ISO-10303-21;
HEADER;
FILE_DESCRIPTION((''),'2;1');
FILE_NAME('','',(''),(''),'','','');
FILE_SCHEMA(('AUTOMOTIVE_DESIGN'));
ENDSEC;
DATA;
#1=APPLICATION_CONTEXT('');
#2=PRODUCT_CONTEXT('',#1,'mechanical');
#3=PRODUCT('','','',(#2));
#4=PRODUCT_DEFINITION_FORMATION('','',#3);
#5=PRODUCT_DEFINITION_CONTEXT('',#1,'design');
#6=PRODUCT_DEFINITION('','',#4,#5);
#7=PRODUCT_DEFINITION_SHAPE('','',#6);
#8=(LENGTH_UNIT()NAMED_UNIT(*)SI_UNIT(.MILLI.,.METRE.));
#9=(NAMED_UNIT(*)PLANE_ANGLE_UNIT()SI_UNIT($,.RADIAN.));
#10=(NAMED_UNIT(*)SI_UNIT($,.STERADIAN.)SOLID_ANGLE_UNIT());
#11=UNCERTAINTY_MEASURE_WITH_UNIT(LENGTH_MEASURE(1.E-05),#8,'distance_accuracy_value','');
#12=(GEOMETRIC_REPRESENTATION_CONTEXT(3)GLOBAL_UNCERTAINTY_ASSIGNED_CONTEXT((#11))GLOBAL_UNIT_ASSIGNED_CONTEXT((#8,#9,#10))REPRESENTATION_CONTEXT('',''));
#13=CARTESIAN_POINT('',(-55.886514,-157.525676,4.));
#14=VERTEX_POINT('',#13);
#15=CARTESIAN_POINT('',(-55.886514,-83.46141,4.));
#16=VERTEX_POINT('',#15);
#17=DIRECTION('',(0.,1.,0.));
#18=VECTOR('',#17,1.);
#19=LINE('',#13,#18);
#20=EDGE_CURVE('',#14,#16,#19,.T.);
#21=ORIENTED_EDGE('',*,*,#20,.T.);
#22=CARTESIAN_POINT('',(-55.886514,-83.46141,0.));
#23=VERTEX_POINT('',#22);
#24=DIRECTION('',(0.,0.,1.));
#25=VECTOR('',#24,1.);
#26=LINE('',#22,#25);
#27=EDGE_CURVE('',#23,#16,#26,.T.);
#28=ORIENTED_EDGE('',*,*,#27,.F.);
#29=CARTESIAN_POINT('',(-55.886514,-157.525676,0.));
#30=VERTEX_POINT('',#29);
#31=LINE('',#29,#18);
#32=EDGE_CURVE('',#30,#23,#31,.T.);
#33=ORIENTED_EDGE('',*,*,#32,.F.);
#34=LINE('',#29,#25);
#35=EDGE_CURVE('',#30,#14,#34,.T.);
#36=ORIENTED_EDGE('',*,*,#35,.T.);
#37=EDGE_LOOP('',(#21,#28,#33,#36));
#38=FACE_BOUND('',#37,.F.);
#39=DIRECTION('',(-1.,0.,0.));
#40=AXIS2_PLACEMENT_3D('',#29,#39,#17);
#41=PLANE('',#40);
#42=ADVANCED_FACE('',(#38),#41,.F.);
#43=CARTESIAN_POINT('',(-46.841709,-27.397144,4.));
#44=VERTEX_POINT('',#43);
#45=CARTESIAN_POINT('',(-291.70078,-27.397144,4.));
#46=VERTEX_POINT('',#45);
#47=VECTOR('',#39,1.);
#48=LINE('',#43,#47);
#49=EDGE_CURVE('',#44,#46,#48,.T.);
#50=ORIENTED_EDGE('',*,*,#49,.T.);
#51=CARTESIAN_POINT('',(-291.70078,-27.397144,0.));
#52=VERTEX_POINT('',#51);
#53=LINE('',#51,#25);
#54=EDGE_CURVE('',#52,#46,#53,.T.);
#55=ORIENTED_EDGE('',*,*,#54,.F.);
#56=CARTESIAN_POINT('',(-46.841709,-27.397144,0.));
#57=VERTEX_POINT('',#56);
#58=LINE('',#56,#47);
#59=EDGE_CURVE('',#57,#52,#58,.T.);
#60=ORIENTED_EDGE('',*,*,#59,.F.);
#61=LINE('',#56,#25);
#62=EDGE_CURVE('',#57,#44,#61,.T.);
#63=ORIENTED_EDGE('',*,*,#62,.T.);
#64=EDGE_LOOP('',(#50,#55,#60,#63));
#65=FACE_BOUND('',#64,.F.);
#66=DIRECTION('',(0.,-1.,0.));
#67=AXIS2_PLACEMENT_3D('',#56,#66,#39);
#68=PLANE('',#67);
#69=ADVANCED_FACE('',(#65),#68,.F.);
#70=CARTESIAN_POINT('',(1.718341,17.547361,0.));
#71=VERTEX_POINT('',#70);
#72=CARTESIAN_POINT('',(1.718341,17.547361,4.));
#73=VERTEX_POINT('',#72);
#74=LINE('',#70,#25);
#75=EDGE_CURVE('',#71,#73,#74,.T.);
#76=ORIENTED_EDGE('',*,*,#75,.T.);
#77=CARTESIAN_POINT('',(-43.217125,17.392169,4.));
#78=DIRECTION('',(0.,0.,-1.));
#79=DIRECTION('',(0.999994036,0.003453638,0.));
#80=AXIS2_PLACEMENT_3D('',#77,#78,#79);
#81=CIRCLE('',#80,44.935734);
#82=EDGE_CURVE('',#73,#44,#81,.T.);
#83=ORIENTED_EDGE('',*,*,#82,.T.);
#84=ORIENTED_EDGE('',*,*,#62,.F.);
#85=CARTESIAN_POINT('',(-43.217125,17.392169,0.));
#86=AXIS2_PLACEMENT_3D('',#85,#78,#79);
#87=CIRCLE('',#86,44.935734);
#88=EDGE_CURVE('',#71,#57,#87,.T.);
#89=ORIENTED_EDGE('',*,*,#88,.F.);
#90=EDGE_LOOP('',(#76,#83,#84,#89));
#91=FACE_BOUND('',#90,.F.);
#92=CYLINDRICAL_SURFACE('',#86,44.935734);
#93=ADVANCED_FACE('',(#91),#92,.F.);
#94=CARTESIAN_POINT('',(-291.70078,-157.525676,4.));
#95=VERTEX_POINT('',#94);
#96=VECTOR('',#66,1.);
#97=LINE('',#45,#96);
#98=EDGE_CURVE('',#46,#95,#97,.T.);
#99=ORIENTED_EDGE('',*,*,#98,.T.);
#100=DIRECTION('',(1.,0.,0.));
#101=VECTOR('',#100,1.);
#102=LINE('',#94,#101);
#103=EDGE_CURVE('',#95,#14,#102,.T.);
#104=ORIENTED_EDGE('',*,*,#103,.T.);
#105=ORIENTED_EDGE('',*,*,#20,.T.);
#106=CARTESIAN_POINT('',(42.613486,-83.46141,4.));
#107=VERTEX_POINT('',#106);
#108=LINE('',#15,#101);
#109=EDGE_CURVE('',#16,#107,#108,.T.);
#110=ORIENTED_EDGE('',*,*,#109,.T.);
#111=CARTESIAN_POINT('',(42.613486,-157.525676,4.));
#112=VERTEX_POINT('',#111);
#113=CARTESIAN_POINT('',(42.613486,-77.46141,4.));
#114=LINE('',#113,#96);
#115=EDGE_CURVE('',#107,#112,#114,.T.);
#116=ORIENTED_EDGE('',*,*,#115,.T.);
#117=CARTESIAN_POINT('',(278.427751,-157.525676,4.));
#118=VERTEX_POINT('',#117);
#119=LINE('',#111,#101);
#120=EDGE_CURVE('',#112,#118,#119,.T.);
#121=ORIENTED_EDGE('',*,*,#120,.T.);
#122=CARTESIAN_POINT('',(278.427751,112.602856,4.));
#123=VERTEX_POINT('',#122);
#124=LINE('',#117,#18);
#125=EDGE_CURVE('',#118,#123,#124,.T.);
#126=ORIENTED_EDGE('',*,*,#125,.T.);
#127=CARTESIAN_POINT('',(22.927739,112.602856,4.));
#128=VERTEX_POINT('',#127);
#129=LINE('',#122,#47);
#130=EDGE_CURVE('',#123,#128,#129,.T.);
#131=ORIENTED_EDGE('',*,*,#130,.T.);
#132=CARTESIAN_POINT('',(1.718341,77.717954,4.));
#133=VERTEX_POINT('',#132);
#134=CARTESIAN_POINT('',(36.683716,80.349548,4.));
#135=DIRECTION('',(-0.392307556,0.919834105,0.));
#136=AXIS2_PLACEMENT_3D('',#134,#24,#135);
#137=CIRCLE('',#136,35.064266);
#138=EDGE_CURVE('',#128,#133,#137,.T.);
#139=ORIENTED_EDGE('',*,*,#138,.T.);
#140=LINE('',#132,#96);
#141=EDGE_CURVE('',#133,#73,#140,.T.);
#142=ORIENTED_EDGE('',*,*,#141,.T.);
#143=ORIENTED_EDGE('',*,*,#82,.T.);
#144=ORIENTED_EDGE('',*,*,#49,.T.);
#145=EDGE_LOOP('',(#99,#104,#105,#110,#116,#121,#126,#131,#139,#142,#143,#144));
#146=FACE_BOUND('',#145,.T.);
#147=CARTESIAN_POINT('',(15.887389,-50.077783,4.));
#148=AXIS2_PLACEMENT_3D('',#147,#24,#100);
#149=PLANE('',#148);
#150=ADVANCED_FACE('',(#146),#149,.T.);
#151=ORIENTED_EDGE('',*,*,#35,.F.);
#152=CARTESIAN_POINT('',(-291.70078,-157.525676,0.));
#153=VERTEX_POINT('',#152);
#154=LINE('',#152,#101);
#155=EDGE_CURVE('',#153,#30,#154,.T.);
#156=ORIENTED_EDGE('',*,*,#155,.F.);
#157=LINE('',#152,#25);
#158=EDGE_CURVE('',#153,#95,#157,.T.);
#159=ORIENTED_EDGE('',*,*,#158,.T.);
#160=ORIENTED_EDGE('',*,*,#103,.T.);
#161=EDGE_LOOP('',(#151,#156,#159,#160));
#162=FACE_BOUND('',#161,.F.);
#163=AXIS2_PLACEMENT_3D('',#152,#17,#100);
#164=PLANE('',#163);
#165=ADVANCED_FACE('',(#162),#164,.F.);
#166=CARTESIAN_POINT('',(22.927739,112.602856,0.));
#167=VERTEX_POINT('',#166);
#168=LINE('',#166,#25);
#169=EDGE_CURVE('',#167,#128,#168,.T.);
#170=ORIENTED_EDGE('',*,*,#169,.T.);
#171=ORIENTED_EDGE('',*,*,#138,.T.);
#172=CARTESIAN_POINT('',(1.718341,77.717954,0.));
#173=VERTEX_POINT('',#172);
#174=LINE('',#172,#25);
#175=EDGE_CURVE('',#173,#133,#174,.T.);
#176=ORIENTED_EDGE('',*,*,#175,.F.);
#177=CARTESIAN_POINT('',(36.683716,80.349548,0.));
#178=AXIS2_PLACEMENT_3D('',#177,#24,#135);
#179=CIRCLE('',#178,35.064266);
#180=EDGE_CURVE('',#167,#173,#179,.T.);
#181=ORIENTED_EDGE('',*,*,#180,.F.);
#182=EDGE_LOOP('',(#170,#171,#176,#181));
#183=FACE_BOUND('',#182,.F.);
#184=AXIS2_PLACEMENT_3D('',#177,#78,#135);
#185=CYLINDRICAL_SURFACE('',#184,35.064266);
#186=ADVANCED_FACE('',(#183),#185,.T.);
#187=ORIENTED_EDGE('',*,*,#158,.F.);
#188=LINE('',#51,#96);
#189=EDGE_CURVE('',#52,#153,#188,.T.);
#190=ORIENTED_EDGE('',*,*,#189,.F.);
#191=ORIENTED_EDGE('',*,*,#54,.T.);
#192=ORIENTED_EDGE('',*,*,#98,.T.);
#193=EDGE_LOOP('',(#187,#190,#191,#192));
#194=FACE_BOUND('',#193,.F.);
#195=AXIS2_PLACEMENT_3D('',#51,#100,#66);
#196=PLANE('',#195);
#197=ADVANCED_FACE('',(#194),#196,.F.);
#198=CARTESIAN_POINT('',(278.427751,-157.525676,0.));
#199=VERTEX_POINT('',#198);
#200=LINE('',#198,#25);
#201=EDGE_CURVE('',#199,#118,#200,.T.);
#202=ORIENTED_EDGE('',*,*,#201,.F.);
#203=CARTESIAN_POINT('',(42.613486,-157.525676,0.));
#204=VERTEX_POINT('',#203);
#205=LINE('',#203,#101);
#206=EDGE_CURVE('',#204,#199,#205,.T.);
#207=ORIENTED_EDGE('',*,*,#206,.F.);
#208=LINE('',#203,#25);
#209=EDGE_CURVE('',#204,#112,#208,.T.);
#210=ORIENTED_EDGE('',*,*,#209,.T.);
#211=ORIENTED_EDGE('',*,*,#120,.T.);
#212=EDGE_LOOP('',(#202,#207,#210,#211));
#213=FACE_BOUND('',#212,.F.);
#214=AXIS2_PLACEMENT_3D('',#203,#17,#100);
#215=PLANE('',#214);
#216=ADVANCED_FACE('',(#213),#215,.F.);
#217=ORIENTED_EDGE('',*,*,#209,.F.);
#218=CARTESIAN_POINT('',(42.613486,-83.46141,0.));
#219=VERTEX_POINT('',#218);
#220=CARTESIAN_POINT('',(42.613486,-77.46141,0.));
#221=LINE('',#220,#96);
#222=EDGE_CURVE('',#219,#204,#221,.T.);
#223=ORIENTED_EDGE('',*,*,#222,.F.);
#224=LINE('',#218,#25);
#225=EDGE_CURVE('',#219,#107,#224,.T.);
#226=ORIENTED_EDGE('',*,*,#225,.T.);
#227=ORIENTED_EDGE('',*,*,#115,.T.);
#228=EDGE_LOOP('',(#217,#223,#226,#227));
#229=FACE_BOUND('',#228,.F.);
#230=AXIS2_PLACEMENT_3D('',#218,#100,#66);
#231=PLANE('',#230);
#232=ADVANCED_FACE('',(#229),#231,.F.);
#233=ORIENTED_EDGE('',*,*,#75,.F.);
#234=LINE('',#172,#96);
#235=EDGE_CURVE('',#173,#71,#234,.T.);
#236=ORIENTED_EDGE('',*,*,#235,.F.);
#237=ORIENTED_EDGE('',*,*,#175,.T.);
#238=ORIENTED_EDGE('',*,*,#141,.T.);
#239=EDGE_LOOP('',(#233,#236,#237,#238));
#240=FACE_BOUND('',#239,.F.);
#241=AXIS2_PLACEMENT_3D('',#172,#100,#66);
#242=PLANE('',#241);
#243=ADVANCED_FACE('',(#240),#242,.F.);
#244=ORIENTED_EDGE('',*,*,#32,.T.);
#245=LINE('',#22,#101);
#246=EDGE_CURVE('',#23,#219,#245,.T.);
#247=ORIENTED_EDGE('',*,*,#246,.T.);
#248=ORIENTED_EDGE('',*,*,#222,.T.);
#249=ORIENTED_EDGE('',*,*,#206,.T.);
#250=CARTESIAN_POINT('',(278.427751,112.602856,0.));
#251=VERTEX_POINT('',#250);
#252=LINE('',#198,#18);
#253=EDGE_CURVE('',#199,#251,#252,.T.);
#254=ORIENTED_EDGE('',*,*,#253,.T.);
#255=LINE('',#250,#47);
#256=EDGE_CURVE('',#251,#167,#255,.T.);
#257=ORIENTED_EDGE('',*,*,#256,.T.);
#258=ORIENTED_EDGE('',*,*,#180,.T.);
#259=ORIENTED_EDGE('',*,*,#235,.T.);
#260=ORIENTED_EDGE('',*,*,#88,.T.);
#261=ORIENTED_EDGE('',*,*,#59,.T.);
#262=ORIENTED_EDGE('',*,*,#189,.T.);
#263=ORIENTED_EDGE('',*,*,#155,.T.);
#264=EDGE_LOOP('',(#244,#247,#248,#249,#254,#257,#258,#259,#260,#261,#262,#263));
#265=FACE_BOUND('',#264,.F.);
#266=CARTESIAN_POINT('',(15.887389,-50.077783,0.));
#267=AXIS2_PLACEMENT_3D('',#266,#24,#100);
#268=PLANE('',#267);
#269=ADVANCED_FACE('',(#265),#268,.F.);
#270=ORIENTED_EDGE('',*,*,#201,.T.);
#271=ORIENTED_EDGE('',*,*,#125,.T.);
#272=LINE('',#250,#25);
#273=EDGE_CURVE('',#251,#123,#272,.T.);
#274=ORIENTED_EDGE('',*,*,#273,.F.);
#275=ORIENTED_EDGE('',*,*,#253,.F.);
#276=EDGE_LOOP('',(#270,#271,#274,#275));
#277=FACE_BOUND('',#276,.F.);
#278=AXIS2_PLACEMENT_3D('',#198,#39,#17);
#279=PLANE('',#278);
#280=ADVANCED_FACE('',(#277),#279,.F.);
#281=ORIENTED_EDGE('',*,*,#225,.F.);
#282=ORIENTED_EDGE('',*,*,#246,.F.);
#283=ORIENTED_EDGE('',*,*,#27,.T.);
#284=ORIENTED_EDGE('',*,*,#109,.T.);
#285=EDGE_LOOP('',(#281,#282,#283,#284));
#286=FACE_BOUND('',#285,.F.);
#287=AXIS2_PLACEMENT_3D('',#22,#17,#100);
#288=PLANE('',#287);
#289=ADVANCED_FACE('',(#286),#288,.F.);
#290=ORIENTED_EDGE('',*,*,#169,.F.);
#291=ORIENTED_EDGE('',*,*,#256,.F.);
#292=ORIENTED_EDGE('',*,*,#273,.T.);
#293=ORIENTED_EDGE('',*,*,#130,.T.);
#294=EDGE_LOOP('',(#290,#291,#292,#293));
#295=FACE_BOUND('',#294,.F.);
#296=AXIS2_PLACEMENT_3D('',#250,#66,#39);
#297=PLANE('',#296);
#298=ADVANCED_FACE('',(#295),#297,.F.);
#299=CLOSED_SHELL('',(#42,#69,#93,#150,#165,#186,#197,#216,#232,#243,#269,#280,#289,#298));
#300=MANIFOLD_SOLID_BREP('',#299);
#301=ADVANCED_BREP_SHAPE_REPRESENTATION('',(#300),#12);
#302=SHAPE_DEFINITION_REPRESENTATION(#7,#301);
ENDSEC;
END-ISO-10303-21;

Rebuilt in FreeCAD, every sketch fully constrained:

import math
import FreeCAD as App
import Part
import Sketcher

doc = App.newDocument("Part")
body = doc.addObject("PartDesign::Body", "Body")

# Sketch on XY plane
sketch1 = body.newObject("Sketcher::SketchObject", "Sketch")
sketch1.AttachmentSupport = (doc.getObject("XY_Plane"), [""])
sketch1.MapMode = "FlatFace"
sketch1.addGeometry(Part.LineSegment(App.Vector(-291.70078, -157.525676, 0), App.Vector(-55.886514, -157.525676, 0)), False)
sketch1.addGeometry(Part.LineSegment(App.Vector(-55.886514, -157.525676, 0), App.Vector(-55.886514, -83.46141, 0)), False)
sketch1.addGeometry(Part.LineSegment(App.Vector(-55.886514, -83.46141, 0), App.Vector(42.613486, -83.46141, 0)), False)
sketch1.addGeometry(Part.LineSegment(App.Vector(42.613486, -83.46141, 0), App.Vector(42.613486, -157.525676, 0)), False)
sketch1.addGeometry(Part.LineSegment(App.Vector(42.613486, -157.525676, 0), App.Vector(278.427751, -157.525676, 0)), False)
sketch1.addGeometry(Part.LineSegment(App.Vector(278.427751, -157.525676, 0), App.Vector(278.427751, 112.602856, 0)), False)
sketch1.addGeometry(Part.LineSegment(App.Vector(278.427751, 112.602856, 0), App.Vector(22.927739, 112.602856, 0)), False)
sketch1.addGeometry(Part.ArcOfCircle(Part.Circle(App.Vector(36.683716, 80.349548, 0), App.Vector(0, 0, 1), 35.064266), math.radians(113.098159), math.radians(184.30413)), False)
sketch1.addGeometry(Part.LineSegment(App.Vector(1.718341, 77.717954, 0), App.Vector(1.718341, 17.547361, 0)), False)
sketch1.addGeometry(Part.ArcOfCircle(Part.Circle(App.Vector(-43.217125, 17.392169, 0), App.Vector(0, 0, 1), 44.935734), math.radians(-94.62659), math.radians(0.197879)), False)
sketch1.addGeometry(Part.LineSegment(App.Vector(-46.841709, -27.397144, 0), App.Vector(-291.70078, -27.397144, 0)), False)
sketch1.addGeometry(Part.LineSegment(App.Vector(-291.70078, -27.397144, 0), App.Vector(-291.70078, -157.525676, 0)), False)
sketch1.addConstraint(Sketcher.Constraint("Coincident", 0, 2, 1, 1))
sketch1.addConstraint(Sketcher.Constraint("Coincident", 1, 2, 2, 1))
sketch1.addConstraint(Sketcher.Constraint("Coincident", 2, 2, 3, 1))
sketch1.addConstraint(Sketcher.Constraint("Coincident", 3, 2, 4, 1))
sketch1.addConstraint(Sketcher.Constraint("Coincident", 4, 2, 5, 1))
sketch1.addConstraint(Sketcher.Constraint("Coincident", 5, 2, 6, 1))
sketch1.addConstraint(Sketcher.Constraint("Coincident", 6, 2, 7, 1))
sketch1.addConstraint(Sketcher.Constraint("Coincident", 7, 2, 8, 1))
sketch1.addConstraint(Sketcher.Constraint("Coincident", 8, 2, 9, 2))
sketch1.addConstraint(Sketcher.Constraint("Coincident", 9, 1, 10, 1))
sketch1.addConstraint(Sketcher.Constraint("Coincident", 10, 2, 11, 1))
sketch1.addConstraint(Sketcher.Constraint("Coincident", 11, 2, 0, 1))
sketch1.addConstraint(Sketcher.Constraint("Horizontal", 0))
sketch1.addConstraint(Sketcher.Constraint("Vertical", 1))
sketch1.addConstraint(Sketcher.Constraint("Horizontal", 2))
sketch1.addConstraint(Sketcher.Constraint("Vertical", 3))
sketch1.addConstraint(Sketcher.Constraint("Horizontal", 4))
sketch1.addConstraint(Sketcher.Constraint("Vertical", 5))
sketch1.addConstraint(Sketcher.Constraint("Horizontal", 6))
sketch1.addConstraint(Sketcher.Constraint("Vertical", 8))
sketch1.addConstraint(Sketcher.Constraint("Horizontal", 10))
sketch1.addConstraint(Sketcher.Constraint("Vertical", 11))
sketch1.addConstraint(Sketcher.Constraint("Horizontal", 0, 2, 3, 2))
sketch1.addConstraint(Sketcher.Constraint("Equal", 0, 4))
sketch1.addConstraint(Sketcher.Constraint("DistanceX", 2, 1, 2, 2, 98.5))
sketch1.addConstraint(Sketcher.Constraint("Radius", 7, 35.064266))
sketch1.addConstraint(Sketcher.Constraint("Radius", 9, 44.935734))
sketch1.addConstraint(Sketcher.Constraint("DistanceX", 10, 2, 10, 1, 244.859071))
sketch1.addConstraint(Sketcher.Constraint("DistanceY", 5, 1, 5, 2, 270.128532))
sketch1.addConstraint(Sketcher.Constraint("DistanceY", 11, 2, 11, 1, 130.128532))
sketch1.addConstraint(Sketcher.Constraint("DistanceX", 7, 2, 6, 2, 21.209399))
sketch1.addConstraint(Sketcher.Constraint("DistanceY", 7, 2, 6, 2, 34.884902))
sketch1.addConstraint(Sketcher.Constraint("DistanceX", 0, 1, 0, 2, 235.814266))
sketch1.addConstraint(Sketcher.Constraint("DistanceX", 6, 2, 6, 1, 255.500012))
sketch1.addConstraint(Sketcher.Constraint("DistanceY", 1, 1, 1, 2, 74.064266))
sketch1.addConstraint(Sketcher.Constraint("DistanceY", 8, 2, 8, 1, 60.170593))
sketch1.addConstraint(Sketcher.Constraint("DistanceY", -1, 1, 7, 3, 80.349548))
sketch1.addConstraint(Sketcher.Constraint("DistanceX", -1, 1, 4, 2, 278.427751))
pad1 = body.newObject("PartDesign::Pad", "Pad")
pad1.Profile = sketch1
pad1.Length = 4

doc.recompute()
